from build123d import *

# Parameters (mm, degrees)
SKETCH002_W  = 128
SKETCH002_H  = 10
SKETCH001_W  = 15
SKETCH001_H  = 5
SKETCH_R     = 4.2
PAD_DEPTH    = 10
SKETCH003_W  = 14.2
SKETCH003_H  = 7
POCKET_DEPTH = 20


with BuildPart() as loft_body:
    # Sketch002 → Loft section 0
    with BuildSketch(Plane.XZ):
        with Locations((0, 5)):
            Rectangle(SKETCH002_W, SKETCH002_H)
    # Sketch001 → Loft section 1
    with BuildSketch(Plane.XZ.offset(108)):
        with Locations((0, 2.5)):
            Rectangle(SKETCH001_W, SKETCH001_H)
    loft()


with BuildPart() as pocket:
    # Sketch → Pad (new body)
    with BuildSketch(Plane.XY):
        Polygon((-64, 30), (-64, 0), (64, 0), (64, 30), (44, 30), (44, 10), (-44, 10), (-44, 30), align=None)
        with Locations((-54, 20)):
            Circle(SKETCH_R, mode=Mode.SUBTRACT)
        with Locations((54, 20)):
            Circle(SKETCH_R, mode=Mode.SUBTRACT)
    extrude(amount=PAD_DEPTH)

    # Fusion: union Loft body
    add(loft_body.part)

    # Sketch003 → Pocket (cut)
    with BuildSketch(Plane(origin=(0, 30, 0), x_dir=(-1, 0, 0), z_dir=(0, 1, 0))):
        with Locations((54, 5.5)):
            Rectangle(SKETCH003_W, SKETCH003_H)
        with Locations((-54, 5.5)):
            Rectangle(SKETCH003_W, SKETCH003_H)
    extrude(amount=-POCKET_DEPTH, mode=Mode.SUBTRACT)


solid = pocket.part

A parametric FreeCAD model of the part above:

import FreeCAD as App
import Part
import Sketcher

V = App.Vector

doc = App.newDocument("Part")
body = doc.addObject("PartDesign::Body", "Body")

# Sketch on XZ plane
sketch1 = doc.addObject("Sketcher::SketchObject", "Sketch")
body.addObject(sketch1)
sketch1.AttachmentSupport = (doc.XZ_Plane, [""])
sketch1.MapMode = "FlatFace"
sketch1.addGeometry([
    Part.LineSegment(V(-64, 10, 0), V(-64, 0, 0)),
    Part.LineSegment(V(-64, 0, 0), V(64, 0, 0)),
    Part.LineSegment(V(64, 0, 0), V(64, 10, 0)),
    Part.LineSegment(V(64, 10, 0), V(-64, 10, 0)),
], False)
sketch1.addConstraint([
    Sketcher.Constraint("Coincident", 0, 2, 1, 1),
    Sketcher.Constraint("Coincident", 1, 2, 2, 1),
    Sketcher.Constraint("Coincident", 2, 2, 3, 1),
    Sketcher.Constraint("Coincident", 3, 2, 0, 1),
    Sketcher.Constraint("Vertical", 0),
    Sketcher.Constraint("Horizontal", 1),
    Sketcher.Constraint("Vertical", 2),
    Sketcher.Constraint("Horizontal", 3),
    Sketcher.Constraint("Symmetric", 0, 2, 1, 2, -1, 1),
    Sketcher.Constraint("DistanceX", 1, 1, 1, 2, 128.0),
    Sketcher.Constraint("DistanceY", 0, 2, 0, 1, 10.0),
])

# Sketch on XZ plane
sketch2 = doc.addObject("Sketcher::SketchObject", "Sketch001")
body.addObject(sketch2)
sketch2.AttachmentSupport = (doc.XZ_Plane, [""])
sketch2.MapMode = "FlatFace"
sketch2.AttachmentOffset = App.Placement(V(0, 0, 108), App.Rotation())
sketch2.addGeometry([
    Part.LineSegment(V(-8, 5, 0), V(-8, 0, 0)),
    Part.LineSegment(V(-8, 0, 0), V(8, 0, 0)),
    Part.LineSegment(V(8, 0, 0), V(8, 5, 0)),
    Part.LineSegment(V(8, 5, 0), V(-8, 5, 0)),
], False)
sketch2.addConstraint([
    Sketcher.Constraint("Coincident", 0, 2, 1, 1),
    Sketcher.Constraint("Coincident", 1, 2, 2, 1),
    Sketcher.Constraint("Coincident", 2, 2, 3, 1),
    Sketcher.Constraint("Coincident", 3, 2, 0, 1),
    Sketcher.Constraint("Vertical", 0),
    Sketcher.Constraint("Horizontal", 1),
    Sketcher.Constraint("Vertical", 2),
    Sketcher.Constraint("Horizontal", 3),
    Sketcher.Constraint("Symmetric", 0, 2, 1, 2, -1, 1),
    Sketcher.Constraint("DistanceX", 1, 1, 1, 2, 15.0),
    Sketcher.Constraint("DistanceY", 0, 2, 0, 1, 5.0),
])

additiveloft = doc.addObject("PartDesign::AdditiveLoft", "AdditiveLoft")
body.addObject(additiveloft)
additiveloft.Profile = sketch1
additiveloft.Sections = [sketch2]
body2 = doc.addObject("PartDesign::Body", "Body001")

# Sketch on XY plane
sketch3 = doc.addObject("Sketcher::SketchObject", "Sketch002")
body2.addObject(sketch3)
sketch3.AttachmentSupport = (doc.getObject("XY_Plane001"), [""])
sketch3.MapMode = "FlatFace"
sketch3.addGeometry([
    Part.LineSegment(V(-64, 30, 0), V(-64, 0, 0)),  # 0
    Part.LineSegment(V(-64, 0, 0), V(64, 0, 0)),  # 1
    Part.LineSegment(V(64, 0, 0), V(64, 30, 0)),  # 2
    Part.LineSegment(V(64, 30, 0), V(44, 30, 0)),  # 3
    Part.LineSegment(V(44, 30, 0), V(44, 10, 0)),  # 4
    Part.LineSegment(V(44, 10, 0), V(-44, 10, 0)),  # 5
    Part.LineSegment(V(-44, 10, 0), V(-44, 30, 0)),  # 6
    Part.LineSegment(V(-44, 30, 0), V(-64, 30, 0)),  # 7
    Part.Circle(V(-54, 20, 0), V(0, 0, 1), 4.2),  # 8
    Part.Circle(V(54, 20, 0), V(0, 0, 1), 4.2),  # 9
], False)
sketch3.addConstraint([
    Sketcher.Constraint("Coincident", 0, 2, 1, 1),
    Sketcher.Constraint("Coincident", 1, 2, 2, 1),
    Sketcher.Constraint("Coincident", 2, 2, 3, 1),
    Sketcher.Constraint("Coincident", 3, 2, 4, 1),
    Sketcher.Constraint("Coincident", 4, 2, 5, 1),
    Sketcher.Constraint("Coincident", 5, 2, 6, 1),
    Sketcher.Constraint("Coincident", 6, 2, 7, 1),
    Sketcher.Constraint("Coincident", 7, 2, 0, 1),
    Sketcher.Constraint("Vertical", 0),
    Sketcher.Constraint("Horizontal", 1),
    Sketcher.Constraint("Vertical", 2),
    Sketcher.Constraint("Horizontal", 3),
    Sketcher.Constraint("Vertical", 4),
    Sketcher.Constraint("Horizontal", 5),
    Sketcher.Constraint("Vertical", 6),
    Sketcher.Constraint("Horizontal", 7),
    Sketcher.Constraint("Equal", 8, 9),
    Sketcher.Constraint("Symmetric", 0, 2, 1, 2, -1, 1),
    Sketcher.Constraint("Symmetric", 8, 3, 9, 3, -2),
    Sketcher.Constraint("Symmetric", 3, 2, 6, 2, -2),
    Sketcher.Constraint("Equal", 7, 4),
    Sketcher.Constraint("Diameter", 8, 8.4),
    Sketcher.Constraint("DistanceX", 1, 1, 1, 2, 128.0),
    Sketcher.Constraint("DistanceX", 3, 2, 3, 1, 20.0),
    Sketcher.Constraint("DistanceY", 0, 2, 0, 1, 30.0),
    Sketcher.Constraint("DistanceX", 8, 3, -1, 1, 54.0),
    Sketcher.Constraint("DistanceY", -1, 1, 8, 3, 20.0),
])
pad1 = doc.addObject("PartDesign::Pad", "Pad")
body2.addObject(pad1)
pad1.Profile = sketch3
pad1.Length = 10
doc.recompute()

boolean = doc.addObject("PartDesign::Boolean", "Boolean")
body2.addObject(boolean)
boolean.Type = "Fuse"
boolean.addObjects([body])

# Sketch on XZ plane
sketch4 = doc.addObject("Sketcher::SketchObject", "Sketch003")
body2.addObject(sketch4)
sketch4.AttachmentSupport = (doc.getObject("XZ_Plane001"), [""])
sketch4.MapMode = "FlatFace"
sketch4.AttachmentOffset = App.Placement(V(0, 0, -30), App.Rotation())
sketch4.addGeometry([
    Part.LineSegment(V(-47, 9, 0), V(-47, 2, 0)),  # 0
    Part.LineSegment(V(-47, 2, 0), V(-61, 2, 0)),  # 1
    Part.LineSegment(V(-61, 2, 0), V(-61, 9, 0)),  # 2
    Part.LineSegment(V(-61, 9, 0), V(-47, 9, 0)),  # 3
    Part.LineSegment(V(61, 9, 0), V(61, 2, 0)),  # 4
    Part.LineSegment(V(61, 2, 0), V(47, 2, 0)),  # 5
    Part.LineSegment(V(47, 2, 0), V(47, 9, 0)),  # 6
    Part.LineSegment(V(47, 9, 0), V(61, 9, 0)),  # 7
], False)
sketch4.addConstraint([
    Sketcher.Constraint("Coincident", 0, 2, 1, 1),
    Sketcher.Constraint("Coincident", 1, 2, 2, 1),
    Sketcher.Constraint("Coincident", 2, 2, 3, 1),
    Sketcher.Constraint("Coincident", 3, 2, 0, 1),
    Sketcher.Constraint("Coincident", 4, 2, 5, 1),
    Sketcher.Constraint("Coincident", 5, 2, 6, 1),
    Sketcher.Constraint("Coincident", 6, 2, 7, 1),
    Sketcher.Constraint("Coincident", 7, 2, 4, 1),
    Sketcher.Constraint("Vertical", 0),
    Sketcher.Constraint("Horizontal", 1),
    Sketcher.Constraint("Vertical", 2),
    Sketcher.Constraint("Horizontal", 3),
    Sketcher.Constraint("Vertical", 4),
    Sketcher.Constraint("Horizontal", 5),
    Sketcher.Constraint("Vertical", 6),
    Sketcher.Constraint("Horizontal", 7),
    Sketcher.Constraint("Symmetric", 1, 2, 4, 2, -2),
    Sketcher.Constraint("Symmetric", 3, 2, 6, 2, -2),
    Sketcher.Constraint("DistanceY", 0, 2, 0, 1, 7.0),
    Sketcher.Constraint("DistanceX", 1, 2, 1, 1, 14.2),
    Sketcher.Constraint("DistanceY", -1, 1, 0, 2, 2.0),
    Sketcher.Constraint("DistanceX", 0, 2, 4, 2, 108.0),
])
pocket1 = doc.addObject("PartDesign::Pocket", "Pocket")
body2.addObject(pocket1)
pocket1.Profile = sketch4
pocket1.Length = 20
pocket1.Reversed = True

doc.recompute()
